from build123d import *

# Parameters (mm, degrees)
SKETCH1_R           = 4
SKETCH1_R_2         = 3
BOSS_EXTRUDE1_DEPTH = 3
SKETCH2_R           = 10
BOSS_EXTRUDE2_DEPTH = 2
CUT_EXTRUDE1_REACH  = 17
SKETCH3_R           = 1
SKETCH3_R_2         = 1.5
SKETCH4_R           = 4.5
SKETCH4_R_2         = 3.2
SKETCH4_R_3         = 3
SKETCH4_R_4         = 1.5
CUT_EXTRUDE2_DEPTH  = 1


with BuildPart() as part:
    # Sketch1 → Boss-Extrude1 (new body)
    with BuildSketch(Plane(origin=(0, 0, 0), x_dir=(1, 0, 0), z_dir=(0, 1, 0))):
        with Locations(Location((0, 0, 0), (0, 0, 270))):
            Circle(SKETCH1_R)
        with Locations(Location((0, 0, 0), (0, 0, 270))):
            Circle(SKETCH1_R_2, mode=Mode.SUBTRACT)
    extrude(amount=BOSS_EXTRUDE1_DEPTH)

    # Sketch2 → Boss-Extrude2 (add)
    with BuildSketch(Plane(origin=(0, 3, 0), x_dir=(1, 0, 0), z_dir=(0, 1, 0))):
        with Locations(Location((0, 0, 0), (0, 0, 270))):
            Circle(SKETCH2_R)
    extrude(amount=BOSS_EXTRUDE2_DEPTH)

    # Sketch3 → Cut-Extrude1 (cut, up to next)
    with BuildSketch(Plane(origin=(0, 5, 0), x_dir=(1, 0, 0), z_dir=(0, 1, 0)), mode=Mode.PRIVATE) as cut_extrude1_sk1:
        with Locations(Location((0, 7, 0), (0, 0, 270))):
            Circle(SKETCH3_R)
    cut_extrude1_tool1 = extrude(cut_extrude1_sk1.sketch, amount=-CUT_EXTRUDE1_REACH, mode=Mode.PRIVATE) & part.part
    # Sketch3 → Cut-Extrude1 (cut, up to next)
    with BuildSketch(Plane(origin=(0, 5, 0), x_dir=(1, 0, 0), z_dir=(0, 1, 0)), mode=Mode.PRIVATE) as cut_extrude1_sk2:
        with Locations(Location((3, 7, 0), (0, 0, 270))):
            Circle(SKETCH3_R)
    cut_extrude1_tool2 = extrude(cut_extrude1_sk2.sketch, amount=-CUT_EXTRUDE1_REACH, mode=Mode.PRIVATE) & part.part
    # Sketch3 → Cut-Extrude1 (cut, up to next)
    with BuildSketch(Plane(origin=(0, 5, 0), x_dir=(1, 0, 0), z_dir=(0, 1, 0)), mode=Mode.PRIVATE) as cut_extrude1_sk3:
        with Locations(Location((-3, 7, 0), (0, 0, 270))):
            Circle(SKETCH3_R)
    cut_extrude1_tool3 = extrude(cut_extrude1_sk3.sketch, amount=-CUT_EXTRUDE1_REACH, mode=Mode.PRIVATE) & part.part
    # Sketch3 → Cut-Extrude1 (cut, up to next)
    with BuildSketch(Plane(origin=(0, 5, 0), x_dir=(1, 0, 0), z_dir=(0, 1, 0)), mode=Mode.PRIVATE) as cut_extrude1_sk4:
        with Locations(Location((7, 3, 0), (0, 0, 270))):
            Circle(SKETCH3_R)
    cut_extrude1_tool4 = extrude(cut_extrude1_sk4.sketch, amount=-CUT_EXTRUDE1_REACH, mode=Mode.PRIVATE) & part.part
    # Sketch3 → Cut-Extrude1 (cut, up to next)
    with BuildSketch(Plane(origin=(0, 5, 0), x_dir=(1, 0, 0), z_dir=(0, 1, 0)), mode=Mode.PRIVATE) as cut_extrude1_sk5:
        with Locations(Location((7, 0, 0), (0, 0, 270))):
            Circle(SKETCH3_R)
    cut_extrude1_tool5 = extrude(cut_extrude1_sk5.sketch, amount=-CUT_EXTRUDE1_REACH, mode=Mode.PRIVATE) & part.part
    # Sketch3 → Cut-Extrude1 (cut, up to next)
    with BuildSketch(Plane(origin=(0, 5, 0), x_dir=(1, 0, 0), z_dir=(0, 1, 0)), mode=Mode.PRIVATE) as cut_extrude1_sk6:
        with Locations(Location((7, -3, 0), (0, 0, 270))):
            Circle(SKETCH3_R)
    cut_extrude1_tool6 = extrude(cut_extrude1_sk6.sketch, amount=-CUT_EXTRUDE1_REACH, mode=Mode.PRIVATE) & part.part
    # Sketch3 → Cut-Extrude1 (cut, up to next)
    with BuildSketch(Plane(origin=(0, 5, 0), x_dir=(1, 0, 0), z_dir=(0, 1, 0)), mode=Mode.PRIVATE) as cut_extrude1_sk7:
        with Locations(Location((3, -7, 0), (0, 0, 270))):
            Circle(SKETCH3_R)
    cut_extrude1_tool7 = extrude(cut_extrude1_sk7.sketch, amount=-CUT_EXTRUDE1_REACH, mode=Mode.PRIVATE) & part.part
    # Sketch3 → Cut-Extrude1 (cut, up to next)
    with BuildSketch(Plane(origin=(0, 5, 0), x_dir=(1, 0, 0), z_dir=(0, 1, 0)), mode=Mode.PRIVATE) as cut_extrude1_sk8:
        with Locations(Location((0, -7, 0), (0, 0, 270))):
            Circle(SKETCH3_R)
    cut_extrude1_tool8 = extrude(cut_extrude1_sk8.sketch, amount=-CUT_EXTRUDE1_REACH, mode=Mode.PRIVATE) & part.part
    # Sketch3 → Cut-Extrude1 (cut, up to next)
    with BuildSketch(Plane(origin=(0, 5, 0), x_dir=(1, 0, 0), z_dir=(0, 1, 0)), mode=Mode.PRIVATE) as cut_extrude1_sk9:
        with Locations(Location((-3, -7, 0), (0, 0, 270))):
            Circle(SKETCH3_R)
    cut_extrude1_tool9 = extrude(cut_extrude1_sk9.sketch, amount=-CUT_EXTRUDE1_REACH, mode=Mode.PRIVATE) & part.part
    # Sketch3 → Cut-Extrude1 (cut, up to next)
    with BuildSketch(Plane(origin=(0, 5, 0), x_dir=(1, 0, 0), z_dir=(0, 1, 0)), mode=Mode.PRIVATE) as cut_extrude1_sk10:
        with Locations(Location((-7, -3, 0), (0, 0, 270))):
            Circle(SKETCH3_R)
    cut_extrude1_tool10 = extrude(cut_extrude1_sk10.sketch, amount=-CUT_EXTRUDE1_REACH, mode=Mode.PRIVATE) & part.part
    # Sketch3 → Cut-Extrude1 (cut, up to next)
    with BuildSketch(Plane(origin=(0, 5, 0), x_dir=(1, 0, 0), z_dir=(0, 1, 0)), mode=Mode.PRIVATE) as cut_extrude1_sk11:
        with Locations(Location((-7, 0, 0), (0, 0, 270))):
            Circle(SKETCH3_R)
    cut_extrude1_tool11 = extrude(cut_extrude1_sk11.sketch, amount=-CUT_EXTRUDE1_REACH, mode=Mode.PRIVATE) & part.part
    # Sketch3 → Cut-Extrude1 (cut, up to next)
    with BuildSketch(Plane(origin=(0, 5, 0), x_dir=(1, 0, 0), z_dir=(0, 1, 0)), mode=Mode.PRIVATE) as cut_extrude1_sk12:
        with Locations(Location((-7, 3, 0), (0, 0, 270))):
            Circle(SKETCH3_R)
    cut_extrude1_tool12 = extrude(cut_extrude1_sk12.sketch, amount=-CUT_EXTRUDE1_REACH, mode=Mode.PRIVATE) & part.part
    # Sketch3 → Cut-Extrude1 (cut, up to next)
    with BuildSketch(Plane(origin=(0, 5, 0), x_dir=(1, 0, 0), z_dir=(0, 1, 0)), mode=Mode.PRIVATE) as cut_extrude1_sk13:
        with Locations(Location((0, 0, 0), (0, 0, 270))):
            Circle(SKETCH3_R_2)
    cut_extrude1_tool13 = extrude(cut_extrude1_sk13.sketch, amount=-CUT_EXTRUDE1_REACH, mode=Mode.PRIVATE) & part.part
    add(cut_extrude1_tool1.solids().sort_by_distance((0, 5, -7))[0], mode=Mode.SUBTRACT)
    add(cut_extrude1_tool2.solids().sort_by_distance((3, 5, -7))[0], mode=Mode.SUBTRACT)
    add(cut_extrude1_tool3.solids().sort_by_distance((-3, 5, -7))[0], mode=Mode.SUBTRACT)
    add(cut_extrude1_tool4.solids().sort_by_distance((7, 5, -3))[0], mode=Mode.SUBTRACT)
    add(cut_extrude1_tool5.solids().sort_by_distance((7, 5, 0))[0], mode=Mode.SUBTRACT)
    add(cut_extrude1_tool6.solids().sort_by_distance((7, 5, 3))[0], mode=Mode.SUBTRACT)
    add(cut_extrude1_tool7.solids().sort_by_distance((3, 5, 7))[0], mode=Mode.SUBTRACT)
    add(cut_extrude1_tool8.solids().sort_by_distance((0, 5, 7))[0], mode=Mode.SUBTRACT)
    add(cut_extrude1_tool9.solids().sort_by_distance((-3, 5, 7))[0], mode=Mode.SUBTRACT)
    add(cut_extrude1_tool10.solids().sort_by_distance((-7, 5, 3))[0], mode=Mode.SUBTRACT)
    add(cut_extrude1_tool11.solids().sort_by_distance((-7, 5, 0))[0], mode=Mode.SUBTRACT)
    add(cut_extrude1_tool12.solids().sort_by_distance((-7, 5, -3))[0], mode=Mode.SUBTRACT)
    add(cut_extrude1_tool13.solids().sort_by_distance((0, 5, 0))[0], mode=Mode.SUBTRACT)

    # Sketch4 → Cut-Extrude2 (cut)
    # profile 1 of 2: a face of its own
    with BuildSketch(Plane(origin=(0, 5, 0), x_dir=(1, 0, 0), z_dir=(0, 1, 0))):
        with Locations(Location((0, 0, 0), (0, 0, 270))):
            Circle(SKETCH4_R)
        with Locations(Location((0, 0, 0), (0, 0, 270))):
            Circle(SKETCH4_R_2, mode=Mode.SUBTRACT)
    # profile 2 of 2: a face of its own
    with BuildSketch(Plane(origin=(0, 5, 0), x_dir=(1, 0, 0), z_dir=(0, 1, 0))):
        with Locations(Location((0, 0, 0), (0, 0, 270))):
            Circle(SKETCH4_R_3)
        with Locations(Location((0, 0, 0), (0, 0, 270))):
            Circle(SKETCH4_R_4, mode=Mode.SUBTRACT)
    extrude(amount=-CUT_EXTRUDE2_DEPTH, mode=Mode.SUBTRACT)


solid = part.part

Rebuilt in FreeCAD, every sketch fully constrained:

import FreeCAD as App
import Part
import Sketcher

V = App.Vector
Q = App.Units.Quantity

doc = App.newDocument("Part")
body = doc.addObject("PartDesign::Body", "Body")

# Sketch on XZ plane
sketch1 = body.newObject("Sketcher::SketchObject", "Sketch")
sketch1.AttachmentSupport = (doc.getObject("XZ_Plane"), [""])
sketch1.MapMode = "FlatFace"
sketch1.addGeometry([
    Part.Circle(V(0, 0, 0), V(0, 0, 1), 4),
    Part.Circle(V(0, 0, 0), V(0, 0, 1), 3),
], False)
sketch1.addConstraint([
    Sketcher.Constraint("Coincident", 0, 3, -1, 1),
    Sketcher.Constraint("Coincident", 1, 3, -1, 1),
    Sketcher.Constraint("Diameter", 0, Q("8 mm")),
    Sketcher.Constraint("Diameter", 1, Q("6 mm")),
])
pad1 = body.newObject("PartDesign::Pad", "Pad")
pad1.Profile = sketch1
pad1.Length = 3
pad1.Reversed = True

# Sketch on XZ plane
sketch2 = body.newObject("Sketcher::SketchObject", "Sketch001")
sketch2.AttachmentSupport = (doc.getObject("XZ_Plane"), [""])
sketch2.MapMode = "FlatFace"
sketch2.AttachmentOffset = App.Placement(V(0, 0, -3), App.Rotation())
sketch2.addGeometry(Part.Circle(V(0, 0, 0), V(0, 0, 1), 10), False)
sketch2.addConstraint([
    Sketcher.Constraint("Coincident", 0, 3, -1, 1),
    Sketcher.Constraint("Diameter", 0, Q("20 mm")),
])
pad2 = body.newObject("PartDesign::Pad", "Pad001")
pad2.Profile = sketch2
pad2.Length = 2
pad2.Reversed = True

# Sketch on XZ plane
sketch3 = body.newObject("Sketcher::SketchObject", "Sketch002")
sketch3.AttachmentSupport = (doc.getObject("XZ_Plane"), [""])
sketch3.MapMode = "FlatFace"
sketch3.AttachmentOffset = App.Placement(V(0, 0, -5), App.Rotation())
sketch3.addGeometry(Part.Circle(V(0, -7, 0), V(0, 0, 1), 1), False)
sketch3.addConstraint([
    Sketcher.Constraint("PointOnObject", 0, 3, -2),
    Sketcher.Constraint("Diameter", 0, Q("2 mm")),
    Sketcher.Constraint("DistanceY", 0, 3, -1, 1, Q("7 mm")),
])
pocket1 = body.newObject("PartDesign::Pocket", "Pocket")
pocket1.Profile = sketch3
pocket1.Type = "UpToFirst"
pocket1.Reversed = True

# Sketch on XZ plane
sketch4 = body.newObject("Sketcher::SketchObject", "Sketch003")
sketch4.AttachmentSupport = (doc.getObject("XZ_Plane"), [""])
sketch4.MapMode = "FlatFace"
sketch4.AttachmentOffset = App.Placement(V(0, 0, -5), App.Rotation())
sketch4.addGeometry(Part.Circle(V(3, -7, 0), V(0, 0, 1), 1), False)
sketch4.addConstraint([
    Sketcher.Constraint("Diameter", 0, Q("2 mm")),
    Sketcher.Constraint("DistanceX", -1, 1, 0, 3, Q("3 mm")),
    Sketcher.Constraint("DistanceY", 0, 3, -1, 1, Q("7 mm")),
])
pocket2 = body.newObject("PartDesign::Pocket", "Pocket001")
pocket2.Profile = sketch4
pocket2.Type = "UpToFirst"
pocket2.Reversed = True

# Sketch on XZ plane
sketch5 = body.newObject("Sketcher::SketchObject", "Sketch004")
sketch5.AttachmentSupport = (doc.getObject("XZ_Plane"), [""])
sketch5.MapMode = "FlatFace"
sketch5.AttachmentOffset = App.Placement(V(0, 0, -5), App.Rotation())
sketch5.addGeometry(Part.Circle(V(-3, -7, 0), V(0, 0, 1), 1), False)
sketch5.addConstraint([
    Sketcher.Constraint("Diameter", 0, Q("2 mm")),
    Sketcher.Constraint("DistanceX", 0, 3, -1, 1, Q("3 mm")),
    Sketcher.Constraint("DistanceY", 0, 3, -1, 1, Q("7 mm")),
])
pocket3 = body.newObject("PartDesign::Pocket", "Pocket002")
pocket3.Profile = sketch5
pocket3.Type = "UpToFirst"
pocket3.Reversed = True

# Sketch on XZ plane
sketch6 = body.newObject("Sketcher::SketchObject", "Sketch005")
sketch6.AttachmentSupport = (doc.getObject("XZ_Plane"), [""])
sketch6.MapMode = "FlatFace"
sketch6.AttachmentOffset = App.Placement(V(0, 0, -5), App.Rotation())
sketch6.addGeometry(Part.Circle(V(7, -3, 0), V(0, 0, 1), 1), False)
sketch6.addConstraint([
    Sketcher.Constraint("Diameter", 0, Q("2 mm")),
    Sketcher.Constraint("DistanceX", -1, 1, 0, 3, Q("7 mm")),
    Sketcher.Constraint("DistanceY", 0, 3, -1, 1, Q("3 mm")),
])
pocket4 = body.newObject("PartDesign::Pocket", "Pocket003")
pocket4.Profile = sketch6
pocket4.Type = "UpToFirst"
pocket4.Reversed = True

# Sketch on XZ plane
sketch7 = body.newObject("Sketcher::SketchObject", "Sketch006")
sketch7.AttachmentSupport = (doc.getObject("XZ_Plane"), [""])
sketch7.MapMode = "FlatFace"
sketch7.AttachmentOffset = App.Placement(V(0, 0, -5), App.Rotation())
sketch7.addGeometry(Part.Circle(V(7, 0, 0), V(0, 0, 1), 1), False)
sketch7.addConstraint([
    Sketcher.Constraint("PointOnObject", 0, 3, -1),
    Sketcher.Constraint("Diameter", 0, Q("2 mm")),
    Sketcher.Constraint("DistanceX", -1, 1, 0, 3, Q("7 mm")),
])
pocket5 = body.newObject("PartDesign::Pocket", "Pocket004")
pocket5.Profile = sketch7
pocket5.Type = "UpToFirst"
pocket5.Reversed = True

# Sketch on XZ plane
sketch8 = body.newObject("Sketcher::SketchObject", "Sketch007")
sketch8.AttachmentSupport = (doc.getObject("XZ_Plane"), [""])
sketch8.MapMode = "FlatFace"
sketch8.AttachmentOffset = App.Placement(V(0, 0, -5), App.Rotation())
sketch8.addGeometry(Part.Circle(V(7, 3, 0), V(0, 0, 1), 1), False)
sketch8.addConstraint([
    Sketcher.Constraint("Diameter", 0, Q("2 mm")),
    Sketcher.Constraint("DistanceX", -1, 1, 0, 3, Q("7 mm")),
    Sketcher.Constraint("DistanceY", -1, 1, 0, 3, Q("3 mm")),
])
pocket6 = body.newObject("PartDesign::Pocket", "Pocket005")
pocket6.Profile = sketch8
pocket6.Type = "UpToFirst"
pocket6.Reversed = True

# Sketch on XZ plane
sketch9 = body.newObject("Sketcher::SketchObject", "Sketch008")
sketch9.AttachmentSupport = (doc.getObject("XZ_Plane"), [""])
sketch9.MapMode = "FlatFace"
sketch9.AttachmentOffset = App.Placement(V(0, 0, -5), App.Rotation())
sketch9.addGeometry(Part.Circle(V(3, 7, 0), V(0, 0, 1), 1), False)
sketch9.addConstraint([
    Sketcher.Constraint("Diameter", 0, Q("2 mm")),
    Sketcher.Constraint("DistanceX", -1, 1, 0, 3, Q("3 mm")),
    Sketcher.Constraint("DistanceY", -1, 1, 0, 3, Q("7 mm")),
])
pocket7 = body.newObject("PartDesign::Pocket", "Pocket006")
pocket7.Profile = sketch9
pocket7.Type = "UpToFirst"
pocket7.Reversed = True

# Sketch on XZ plane
sketch10 = body.newObject("Sketcher::SketchObject", "Sketch009")
sketch10.AttachmentSupport = (doc.getObject("XZ_Plane"), [""])
sketch10.MapMode = "FlatFace"
sketch10.AttachmentOffset = App.Placement(V(0, 0, -5), App.Rotation())
sketch10.addGeometry(Part.Circle(V(0, 7, 0), V(0, 0, 1), 1), False)
sketch10.addConstraint([
    Sketcher.Constraint("PointOnObject", 0, 3, -2),
    Sketcher.Constraint("Diameter", 0, Q("2 mm")),
    Sketcher.Constraint("DistanceY", -1, 1, 0, 3, Q("7 mm")),
])
pocket8 = body.newObject("PartDesign::Pocket", "Pocket007")
pocket8.Profile = sketch10
pocket8.Type = "UpToFirst"
pocket8.Reversed = True

# Sketch on XZ plane
sketch11 = body.newObject("Sketcher::SketchObject", "Sketch010")
sketch11.AttachmentSupport = (doc.getObject("XZ_Plane"), [""])
sketch11.MapMode = "FlatFace"
sketch11.AttachmentOffset = App.Placement(V(0, 0, -5), App.Rotation())
sketch11.addGeometry(Part.Circle(V(-3, 7, 0), V(0, 0, 1), 1), False)
sketch11.addConstraint([
    Sketcher.Constraint("Diameter", 0, Q("2 mm")),
    Sketcher.Constraint("DistanceX", 0, 3, -1, 1, Q("3 mm")),
    Sketcher.Constraint("DistanceY", -1, 1, 0, 3, Q("7 mm")),
])
pocket9 = body.newObject("PartDesign::Pocket", "Pocket008")
pocket9.Profile = sketch11
pocket9.Type = "UpToFirst"
pocket9.Reversed = True

# Sketch on XZ plane
sketch12 = body.newObject("Sketcher::SketchObject", "Sketch011")
sketch12.AttachmentSupport = (doc.getObject("XZ_Plane"), [""])
sketch12.MapMode = "FlatFace"
sketch12.AttachmentOffset = App.Placement(V(0, 0, -5), App.Rotation())
sketch12.addGeometry(Part.Circle(V(-7, 3, 0), V(0, 0, 1), 1), False)
sketch12.addConstraint([
    Sketcher.Constraint("Diameter", 0, Q("2 mm")),
    Sketcher.Constraint("DistanceX", 0, 3, -1, 1, Q("7 mm")),
    Sketcher.Constraint("DistanceY", -1, 1, 0, 3, Q("3 mm")),
])
pocket10 = body.newObject("PartDesign::Pocket", "Pocket009")
pocket10.Profile = sketch12
pocket10.Type = "UpToFirst"
pocket10.Reversed = True

# Sketch on XZ plane
sketch13 = body.newObject("Sketcher::SketchObject", "Sketch012")
sketch13.AttachmentSupport = (doc.getObject("XZ_Plane"), [""])
sketch13.MapMode = "FlatFace"
sketch13.AttachmentOffset = App.Placement(V(0, 0, -5), App.Rotation())
sketch13.addGeometry(Part.Circle(V(-7, 0, 0), V(0, 0, 1), 1), False)
sketch13.addConstraint([
    Sketcher.Constraint("PointOnObject", 0, 3, -1),
    Sketcher.Constraint("Diameter", 0, Q("2 mm")),
    Sketcher.Constraint("DistanceX", 0, 3, -1, 1, Q("7 mm")),
])
pocket11 = body.newObject("PartDesign::Pocket", "Pocket010")
pocket11.Profile = sketch13
pocket11.Type = "UpToFirst"
pocket11.Reversed = True

# Sketch on XZ plane
sketch14 = body.newObject("Sketcher::SketchObject", "Sketch013")
sketch14.AttachmentSupport = (doc.getObject("XZ_Plane"), [""])
sketch14.MapMode = "FlatFace"
sketch14.AttachmentOffset = App.Placement(V(0, 0, -5), App.Rotation())
sketch14.addGeometry(Part.Circle(V(-7, -3, 0), V(0, 0, 1), 1), False)
sketch14.addConstraint([
    Sketcher.Constraint("Diameter", 0, Q("2 mm")),
    Sketcher.Constraint("DistanceX", 0, 3, -1, 1, Q("7 mm")),
    Sketcher.Constraint("DistanceY", 0, 3, -1, 1, Q("3 mm")),
])
pocket12 = body.newObject("PartDesign::Pocket", "Pocket011")
pocket12.Profile = sketch14
pocket12.Type = "UpToFirst"
pocket12.Reversed = True

# Sketch on XZ plane
sketch15 = body.newObject("Sketcher::SketchObject", "Sketch014")
sketch15.AttachmentSupport = (doc.getObject("XZ_Plane"), [""])
sketch15.MapMode = "FlatFace"
sketch15.AttachmentOffset = App.Placement(V(0, 0, -5), App.Rotation())
sketch15.addGeometry(Part.Circle(V(0, 0, 0), V(0, 0, 1), 1.5), False)
sketch15.addConstraint([
    Sketcher.Constraint("Coincident", 0, 3, -1, 1),
    Sketcher.Constraint("Diameter", 0, Q("3 mm")),
])
pocket13 = body.newObject("PartDesign::Pocket", "Pocket012")
pocket13.Profile = sketch15
pocket13.Type = "UpToFirst"
pocket13.Reversed = True

# Sketch on XZ plane
sketch16 = body.newObject("Sketcher::SketchObject", "Sketch015")
sketch16.AttachmentSupport = (doc.getObject("XZ_Plane"), [""])
sketch16.MapMode = "FlatFace"
sketch16.AttachmentOffset = App.Placement(V(0, 0, -5), App.Rotation())
sketch16.addGeometry([
    Part.Circle(V(0, 0, 0), V(0, 0, 1), 4.5),
    Part.Circle(V(0, 0, 0), V(0, 0, 1), 3.2),
    Part.Circle(V(0, 0, 0), V(0, 0, 1), 3),
    Part.Circle(V(0, 0, 0), V(0, 0, 1), 1.5),
], False)
sketch16.addConstraint([
    Sketcher.Constraint("Coincident", 0, 3, -1, 1),
    Sketcher.Constraint("Coincident", 1, 3, -1, 1),
    Sketcher.Constraint("Coincident", 2, 3, -1, 1),
    Sketcher.Constraint("Coincident", 3, 3, -1, 1),
    Sketcher.Constraint("Diameter", 0, Q("9 mm")),
    Sketcher.Constraint("Diameter", 2, Q("6 mm")),
    Sketcher.Constraint("Diameter", 3, Q("3 mm")),
    Sketcher.Constraint("Diameter", 1, Q("6.4 mm")),
])
pocket14 = body.newObject("PartDesign::Pocket", "Pocket013")
pocket14.Profile = sketch16
pocket14.Length = 1
pocket14.Reversed = True

doc.recompute()
